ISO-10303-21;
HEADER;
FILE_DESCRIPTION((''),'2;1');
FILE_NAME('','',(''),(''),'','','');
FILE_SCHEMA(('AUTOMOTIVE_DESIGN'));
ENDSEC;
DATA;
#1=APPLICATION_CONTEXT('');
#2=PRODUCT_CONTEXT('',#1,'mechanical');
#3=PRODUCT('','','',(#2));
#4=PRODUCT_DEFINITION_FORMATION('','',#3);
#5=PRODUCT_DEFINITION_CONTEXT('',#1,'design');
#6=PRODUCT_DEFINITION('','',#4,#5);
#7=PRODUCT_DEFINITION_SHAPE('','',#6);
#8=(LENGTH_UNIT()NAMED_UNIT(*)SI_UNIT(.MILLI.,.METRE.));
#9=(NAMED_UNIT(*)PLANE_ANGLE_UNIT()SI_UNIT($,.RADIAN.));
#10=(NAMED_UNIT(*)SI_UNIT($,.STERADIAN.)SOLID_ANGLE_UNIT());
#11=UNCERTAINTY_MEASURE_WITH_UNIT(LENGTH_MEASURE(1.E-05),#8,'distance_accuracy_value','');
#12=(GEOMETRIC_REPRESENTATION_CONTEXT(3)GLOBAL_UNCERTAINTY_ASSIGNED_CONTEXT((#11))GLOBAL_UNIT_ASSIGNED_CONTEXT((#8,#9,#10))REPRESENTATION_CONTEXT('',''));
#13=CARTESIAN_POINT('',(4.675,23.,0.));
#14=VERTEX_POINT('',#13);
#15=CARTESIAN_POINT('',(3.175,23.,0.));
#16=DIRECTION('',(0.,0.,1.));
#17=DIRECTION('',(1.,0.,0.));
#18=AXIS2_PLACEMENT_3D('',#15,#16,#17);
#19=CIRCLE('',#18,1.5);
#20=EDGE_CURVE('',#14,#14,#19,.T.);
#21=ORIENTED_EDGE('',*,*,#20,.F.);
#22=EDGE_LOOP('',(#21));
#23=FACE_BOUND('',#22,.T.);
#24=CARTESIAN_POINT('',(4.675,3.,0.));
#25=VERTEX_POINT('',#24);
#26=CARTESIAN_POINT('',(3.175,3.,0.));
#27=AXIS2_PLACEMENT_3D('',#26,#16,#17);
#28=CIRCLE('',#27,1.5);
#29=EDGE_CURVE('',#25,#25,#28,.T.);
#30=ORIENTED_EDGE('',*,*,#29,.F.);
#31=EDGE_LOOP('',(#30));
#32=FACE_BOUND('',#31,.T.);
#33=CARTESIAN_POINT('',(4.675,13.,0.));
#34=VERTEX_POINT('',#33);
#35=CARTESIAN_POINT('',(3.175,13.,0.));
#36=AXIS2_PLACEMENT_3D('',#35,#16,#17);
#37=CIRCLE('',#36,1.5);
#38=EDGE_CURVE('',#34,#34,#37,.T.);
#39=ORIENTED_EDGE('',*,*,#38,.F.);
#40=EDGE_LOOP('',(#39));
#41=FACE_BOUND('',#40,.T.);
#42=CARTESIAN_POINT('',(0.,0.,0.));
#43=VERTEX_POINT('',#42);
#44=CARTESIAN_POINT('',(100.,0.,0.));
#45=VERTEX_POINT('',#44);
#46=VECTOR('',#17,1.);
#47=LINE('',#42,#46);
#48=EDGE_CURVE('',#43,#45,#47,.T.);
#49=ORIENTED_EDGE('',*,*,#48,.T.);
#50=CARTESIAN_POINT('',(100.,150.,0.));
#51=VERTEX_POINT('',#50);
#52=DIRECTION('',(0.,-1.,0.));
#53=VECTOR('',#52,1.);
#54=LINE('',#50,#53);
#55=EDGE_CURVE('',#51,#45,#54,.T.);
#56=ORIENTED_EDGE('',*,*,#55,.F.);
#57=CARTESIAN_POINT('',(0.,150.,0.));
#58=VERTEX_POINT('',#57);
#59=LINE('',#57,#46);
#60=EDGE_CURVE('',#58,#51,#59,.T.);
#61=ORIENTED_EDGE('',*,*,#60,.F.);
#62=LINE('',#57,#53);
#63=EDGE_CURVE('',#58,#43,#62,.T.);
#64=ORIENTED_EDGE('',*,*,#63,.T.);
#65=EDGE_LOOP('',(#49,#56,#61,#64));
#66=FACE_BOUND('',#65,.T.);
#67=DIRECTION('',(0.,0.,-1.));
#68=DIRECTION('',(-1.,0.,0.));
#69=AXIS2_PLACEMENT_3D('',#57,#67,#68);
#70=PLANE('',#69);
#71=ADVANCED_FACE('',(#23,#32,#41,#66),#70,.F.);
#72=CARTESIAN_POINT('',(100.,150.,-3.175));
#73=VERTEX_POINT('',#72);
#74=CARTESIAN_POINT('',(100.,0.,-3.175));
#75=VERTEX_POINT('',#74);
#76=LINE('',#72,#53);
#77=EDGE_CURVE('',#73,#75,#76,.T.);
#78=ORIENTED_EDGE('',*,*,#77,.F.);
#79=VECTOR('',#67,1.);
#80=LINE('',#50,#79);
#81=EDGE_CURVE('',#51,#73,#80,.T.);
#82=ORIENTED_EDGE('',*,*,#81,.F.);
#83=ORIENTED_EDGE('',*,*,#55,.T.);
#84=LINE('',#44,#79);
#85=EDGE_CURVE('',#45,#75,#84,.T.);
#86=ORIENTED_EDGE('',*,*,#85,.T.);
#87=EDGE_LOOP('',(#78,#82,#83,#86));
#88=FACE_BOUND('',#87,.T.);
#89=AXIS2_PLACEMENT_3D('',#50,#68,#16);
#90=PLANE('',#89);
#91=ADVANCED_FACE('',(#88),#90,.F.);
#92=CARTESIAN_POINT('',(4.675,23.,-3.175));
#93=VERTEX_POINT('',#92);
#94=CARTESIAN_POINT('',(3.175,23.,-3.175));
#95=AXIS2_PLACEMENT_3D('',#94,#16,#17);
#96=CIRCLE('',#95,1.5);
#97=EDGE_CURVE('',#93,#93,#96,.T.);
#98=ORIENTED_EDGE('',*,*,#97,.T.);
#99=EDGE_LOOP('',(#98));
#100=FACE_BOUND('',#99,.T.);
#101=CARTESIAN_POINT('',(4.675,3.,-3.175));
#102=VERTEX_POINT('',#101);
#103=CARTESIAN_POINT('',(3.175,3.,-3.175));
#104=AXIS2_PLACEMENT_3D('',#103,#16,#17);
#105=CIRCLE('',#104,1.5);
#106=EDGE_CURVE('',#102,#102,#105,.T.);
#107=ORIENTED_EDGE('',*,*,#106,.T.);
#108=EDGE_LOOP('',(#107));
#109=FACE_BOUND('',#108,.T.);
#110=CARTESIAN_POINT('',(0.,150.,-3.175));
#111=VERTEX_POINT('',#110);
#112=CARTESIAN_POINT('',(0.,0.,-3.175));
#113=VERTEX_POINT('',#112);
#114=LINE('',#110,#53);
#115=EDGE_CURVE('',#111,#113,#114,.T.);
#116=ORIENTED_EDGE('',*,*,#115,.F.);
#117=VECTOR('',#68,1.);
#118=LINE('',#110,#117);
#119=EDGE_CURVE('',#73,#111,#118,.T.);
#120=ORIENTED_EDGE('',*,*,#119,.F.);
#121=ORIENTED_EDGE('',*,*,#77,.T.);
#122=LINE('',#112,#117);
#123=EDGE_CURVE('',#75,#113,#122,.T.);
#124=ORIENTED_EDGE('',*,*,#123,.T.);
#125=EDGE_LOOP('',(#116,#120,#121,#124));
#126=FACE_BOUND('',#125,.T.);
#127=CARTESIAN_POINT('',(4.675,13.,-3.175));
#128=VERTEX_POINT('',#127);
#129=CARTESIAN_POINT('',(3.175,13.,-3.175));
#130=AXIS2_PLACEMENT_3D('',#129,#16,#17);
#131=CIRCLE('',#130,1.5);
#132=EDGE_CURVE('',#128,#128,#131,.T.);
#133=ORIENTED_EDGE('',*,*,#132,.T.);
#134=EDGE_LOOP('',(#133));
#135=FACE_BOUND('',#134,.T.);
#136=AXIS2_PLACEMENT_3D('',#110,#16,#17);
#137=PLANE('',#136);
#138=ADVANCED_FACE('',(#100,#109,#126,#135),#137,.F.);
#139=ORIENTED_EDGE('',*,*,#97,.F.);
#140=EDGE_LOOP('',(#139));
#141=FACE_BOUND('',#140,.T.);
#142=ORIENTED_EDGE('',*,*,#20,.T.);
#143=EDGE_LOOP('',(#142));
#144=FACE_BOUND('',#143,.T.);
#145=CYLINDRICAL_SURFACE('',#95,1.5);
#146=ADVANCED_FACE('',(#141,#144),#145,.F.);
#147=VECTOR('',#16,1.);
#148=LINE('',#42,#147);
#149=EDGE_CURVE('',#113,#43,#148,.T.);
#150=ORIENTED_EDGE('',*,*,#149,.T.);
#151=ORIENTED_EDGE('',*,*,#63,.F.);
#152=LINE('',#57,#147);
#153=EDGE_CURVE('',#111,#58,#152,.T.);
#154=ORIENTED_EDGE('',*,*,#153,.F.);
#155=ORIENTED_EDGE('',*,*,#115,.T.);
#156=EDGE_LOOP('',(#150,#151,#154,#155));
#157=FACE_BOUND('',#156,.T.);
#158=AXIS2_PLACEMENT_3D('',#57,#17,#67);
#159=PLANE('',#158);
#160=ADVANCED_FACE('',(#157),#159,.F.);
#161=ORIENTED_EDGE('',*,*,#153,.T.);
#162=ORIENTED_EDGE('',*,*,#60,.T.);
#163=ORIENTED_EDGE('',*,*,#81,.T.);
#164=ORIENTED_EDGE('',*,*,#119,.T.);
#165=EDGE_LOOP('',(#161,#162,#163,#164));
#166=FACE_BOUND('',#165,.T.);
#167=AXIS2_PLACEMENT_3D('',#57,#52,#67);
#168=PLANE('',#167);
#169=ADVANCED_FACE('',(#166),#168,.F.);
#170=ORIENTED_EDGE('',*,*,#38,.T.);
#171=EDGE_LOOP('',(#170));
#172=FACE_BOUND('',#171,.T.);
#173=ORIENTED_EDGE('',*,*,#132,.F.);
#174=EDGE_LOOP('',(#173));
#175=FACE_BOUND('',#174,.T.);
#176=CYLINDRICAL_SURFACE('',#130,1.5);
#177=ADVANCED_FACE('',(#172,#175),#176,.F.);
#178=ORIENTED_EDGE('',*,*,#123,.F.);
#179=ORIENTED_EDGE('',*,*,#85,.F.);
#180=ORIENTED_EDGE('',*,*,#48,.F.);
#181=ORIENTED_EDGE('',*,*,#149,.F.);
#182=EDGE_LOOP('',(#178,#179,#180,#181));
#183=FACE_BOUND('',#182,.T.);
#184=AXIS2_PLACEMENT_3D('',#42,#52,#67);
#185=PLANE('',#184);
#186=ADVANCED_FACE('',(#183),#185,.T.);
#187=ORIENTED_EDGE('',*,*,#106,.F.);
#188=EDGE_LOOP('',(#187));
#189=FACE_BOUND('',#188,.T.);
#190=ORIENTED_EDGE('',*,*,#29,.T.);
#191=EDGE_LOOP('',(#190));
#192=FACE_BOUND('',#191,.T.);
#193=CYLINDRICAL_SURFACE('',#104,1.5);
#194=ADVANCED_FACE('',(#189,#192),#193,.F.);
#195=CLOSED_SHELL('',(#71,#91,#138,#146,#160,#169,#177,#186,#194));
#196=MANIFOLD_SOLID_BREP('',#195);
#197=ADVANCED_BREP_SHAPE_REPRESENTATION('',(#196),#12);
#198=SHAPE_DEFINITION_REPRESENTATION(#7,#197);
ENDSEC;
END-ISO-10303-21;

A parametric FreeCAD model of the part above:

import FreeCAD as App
import Part
import Sketcher

V = App.Vector

doc = App.newDocument("Part")
body = doc.addObject("PartDesign::Body", "Body")

sketch1 = doc.addObject("Sketcher::SketchObject", "Sketch")
body.addObject(sketch1)
sketch1.AttachmentSupport = (doc.XZ_Plane, [""])
sketch1.MapMode = "FlatFace"
sketch1.addGeometry([
    Part.LineSegment(V(0, -3.175, 0), V(0, 0, 0)),
    Part.LineSegment(V(0, 0, 0), V(100, 0, 0)),
    Part.LineSegment(V(100, 0, 0), V(100, -3.175, 0)),
    Part.LineSegment(V(100, -3.175, 0), V(0, -3.175, 0)),
], False)
sketch1.addConstraint([
    Sketcher.Constraint("Coincident", 0, 2, 1, 1),
    Sketcher.Constraint("Coincident", 1, 2, 2, 1),
    Sketcher.Constraint("Coincident", 2, 2, 3, 1),
    Sketcher.Constraint("Coincident", 3, 2, 0, 1),
    Sketcher.Constraint("Vertical", 0),
    Sketcher.Constraint("Horizontal", 1),
    Sketcher.Constraint("Vertical", 2),
    Sketcher.Constraint("Horizontal", 3),
    Sketcher.Constraint("Coincident", 0, 2, -1, 1),
    Sketcher.Constraint("DistanceX", 1, 1, 1, 2, 100.0),
    Sketcher.Constraint("DistanceY", 0, 1, 0, 2, 3.175),
])
pad1 = doc.addObject("PartDesign::Pad", "Pad")
body.addObject(pad1)
pad1.Profile = sketch1
pad1.Length = 150
pad1.Reversed = True

sketch2 = doc.addObject("Sketcher::SketchObject", "Sketch001")
body.addObject(sketch2)
sketch2.AttachmentSupport = (doc.XY_Plane, [""])
sketch2.MapMode = "FlatFace"
sketch2.addGeometry([
    Part.Circle(V(3.175, 3, 0), V(0, 0, 1), 1.5),
    Part.Circle(V(3.175, 13, 0), V(0, 0, 1), 1.5),
], False)
sketch2.addConstraint([
    Sketcher.Constraint("Equal", 0, 1),
    Sketcher.Constraint("Vertical", 0, 3, 1, 3),
    Sketcher.Constraint("Diameter", 0, 3.0),
    Sketcher.Constraint("DistanceY", -1, 1, 0, 3, 3.0),
    Sketcher.Constraint("DistanceY", -1, 1, 1, 3, 13.0),
    Sketcher.Constraint("DistanceX", -1, 1, 0, 3, 3.175),
])
pocket1 = doc.addObject("PartDesign::Pocket", "Pocket")
body.addObject(pocket1)
pocket1.Profile = sketch2
pocket1.Length = 3.175

sketch3 = doc.addObject("Sketcher::SketchObject", "Sketch002")
body.addObject(sketch3)
sketch3.AttachmentSupport = (doc.XY_Plane, [""])
sketch3.MapMode = "FlatFace"
sketch3.addGeometry(Part.Circle(V(3.175, 23, 0), V(0, 0, 1), 1.5), False)
sketch3.addConstraint([
    Sketcher.Constraint("Diameter", 0, 3.0),
    Sketcher.Constraint("DistanceY", -1, 1, 0, 3, 23.0),
    Sketcher.Constraint("DistanceX", -1, 1, 0, 3, 3.175),
])
pocket2 = doc.addObject("PartDesign::Pocket", "Pocket001")
body.addObject(pocket2)
pocket2.Profile = sketch3
pocket2.Length = 3.175

doc.recompute()
